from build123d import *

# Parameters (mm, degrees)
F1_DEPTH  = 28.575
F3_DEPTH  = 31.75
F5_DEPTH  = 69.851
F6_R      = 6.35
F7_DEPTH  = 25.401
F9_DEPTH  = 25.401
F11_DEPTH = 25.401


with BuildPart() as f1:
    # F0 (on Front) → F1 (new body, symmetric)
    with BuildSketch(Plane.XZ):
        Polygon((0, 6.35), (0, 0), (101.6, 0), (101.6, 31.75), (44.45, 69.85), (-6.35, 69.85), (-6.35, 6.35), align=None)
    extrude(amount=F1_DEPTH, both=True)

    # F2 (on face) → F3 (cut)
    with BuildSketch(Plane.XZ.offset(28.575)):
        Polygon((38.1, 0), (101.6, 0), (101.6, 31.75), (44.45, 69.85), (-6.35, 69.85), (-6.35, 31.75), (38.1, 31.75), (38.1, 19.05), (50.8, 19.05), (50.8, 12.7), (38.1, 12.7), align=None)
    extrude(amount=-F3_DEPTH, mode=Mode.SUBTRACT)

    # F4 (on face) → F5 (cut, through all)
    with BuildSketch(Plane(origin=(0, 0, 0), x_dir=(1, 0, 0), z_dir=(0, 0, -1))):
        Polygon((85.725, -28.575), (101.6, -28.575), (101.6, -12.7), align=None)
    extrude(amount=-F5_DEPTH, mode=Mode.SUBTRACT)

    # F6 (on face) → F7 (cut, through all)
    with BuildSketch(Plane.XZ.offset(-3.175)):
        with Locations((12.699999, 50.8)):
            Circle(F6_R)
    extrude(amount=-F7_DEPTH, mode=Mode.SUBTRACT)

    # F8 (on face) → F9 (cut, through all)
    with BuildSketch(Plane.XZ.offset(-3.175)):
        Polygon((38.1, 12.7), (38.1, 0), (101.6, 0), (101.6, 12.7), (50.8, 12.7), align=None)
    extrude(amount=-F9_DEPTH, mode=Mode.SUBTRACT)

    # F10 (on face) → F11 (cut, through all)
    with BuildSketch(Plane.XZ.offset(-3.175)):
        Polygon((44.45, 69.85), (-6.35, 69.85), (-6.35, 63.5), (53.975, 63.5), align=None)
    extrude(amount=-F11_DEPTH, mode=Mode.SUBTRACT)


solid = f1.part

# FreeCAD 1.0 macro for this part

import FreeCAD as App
import Part
import Sketcher
from FreeCAD import Vector
Q = App.Units.Quantity

doc = App.newDocument("Part")
body = doc.addObject("PartDesign::Body", "Body")

# Sketch on XZ plane
sketch1 = doc.addObject("Sketcher::SketchObject", "Sketch")
body.addObject(sketch1)
sketch1.AttachmentSupport = (doc.XZ_Plane, [""])
sketch1.MapMode = "FlatFace"
sketch1.addGeometry([
    Part.LineSegment(Vector(0, 6.35, 0), Vector(0, 0, 0)),  # 0
    Part.LineSegment(Vector(0, 0, 0), Vector(101.6, 0, 0)),  # 1
    Part.LineSegment(Vector(101.6, 0, 0), Vector(101.6, 31.75, 0)),  # 2
    Part.LineSegment(Vector(101.6, 31.75, 0), Vector(44.45, 69.85, 0)),  # 3
    Part.LineSegment(Vector(44.45, 69.85, 0), Vector(-6.35, 69.85, 0)),  # 4
    Part.LineSegment(Vector(-6.35, 69.85, 0), Vector(-6.35, 6.35, 0)),  # 5
    Part.LineSegment(Vector(-6.35, 6.35, 0), Vector(0, 6.35, 0)),  # 6
], False)
sketch1.addConstraint([
    Sketcher.Constraint("Coincident", 0, 2, 1, 1),
    Sketcher.Constraint("Coincident", 1, 2, 2, 1),
    Sketcher.Constraint("Coincident", 2, 2, 3, 1),
    Sketcher.Constraint("Coincident", 3, 2, 4, 1),
    Sketcher.Constraint("Coincident", 4, 2, 5, 1),
    Sketcher.Constraint("Coincident", 5, 2, 6, 1),
    Sketcher.Constraint("Coincident", 6, 2, 0, 1),
    Sketcher.Constraint("Vertical", 0),
    Sketcher.Constraint("Horizontal", 1),
    Sketcher.Constraint("Vertical", 2),
    Sketcher.Constraint("Horizontal", 4),
    Sketcher.Constraint("Vertical", 5),
    Sketcher.Constraint("Horizontal", 6),
    Sketcher.Constraint("Coincident", 0, 2, -1, 1),
    Sketcher.Constraint("Equal", 6, 0),
    Sketcher.Constraint("DistanceX", 1, 1, 1, 2, Q("4 in")),
    Sketcher.Constraint("DistanceX", 4, 2, 4, 1, Q("2 in")),
    Sketcher.Constraint("DistanceY", 5, 2, 5, 1, Q("2.5 in")),
    Sketcher.Constraint("DistanceY", 5, 2, 2, 2, Q("1 in")),
    Sketcher.Constraint("DistanceX", 6, 1, 6, 2, Q("0.25 in")),
])
pad1 = doc.addObject("PartDesign::Pad", "Pad")
body.addObject(pad1)
pad1.Profile = sketch1
pad1.Length = Q("2.25 in")
pad1.Midplane = True

# Sketch on XZ plane
sketch2 = doc.addObject("Sketcher::SketchObject", "Sketch001")
body.addObject(sketch2)
sketch2.AttachmentSupport = (doc.XZ_Plane, [""])
sketch2.MapMode = "FlatFace"
sketch2.AttachmentOffset = App.Placement(Vector(0, 0, 1.125 * 25.4), App.Rotation())
sketch2.addGeometry([
    Part.LineSegment(Vector(38.1, 0, 0), Vector(101.6, 0, 0)),  # 0
    Part.LineSegment(Vector(101.6, 0, 0), Vector(101.6, 31.75, 0)),  # 1
    Part.LineSegment(Vector(101.6, 31.75, 0), Vector(44.45, 69.85, 0)),  # 2
    Part.LineSegment(Vector(44.45, 69.85, 0), Vector(-6.35, 69.85, 0)),  # 3
    Part.LineSegment(Vector(-6.35, 69.85, 0), Vector(-6.35, 31.75, 0)),  # 4
    Part.LineSegment(Vector(-6.35, 31.75, 0), Vector(38.1, 31.75, 0)),  # 5
    Part.LineSegment(Vector(38.1, 31.75, 0), Vector(38.1, 19.05, 0)),  # 6
    Part.LineSegment(Vector(38.1, 19.05, 0), Vector(50.8, 19.05, 0)),  # 7
    Part.LineSegment(Vector(50.8, 19.05, 0), Vector(50.8, 12.7, 0)),  # 8
    Part.LineSegment(Vector(50.8, 12.7, 0), Vector(38.1, 12.7, 0)),  # 9
    Part.LineSegment(Vector(38.1, 12.7, 0), Vector(38.1, 0, 0)),  # 10
], False)
sketch2.addConstraint([
    Sketcher.Constraint("Coincident", 0, 2, 1, 1),
    Sketcher.Constraint("Coincident", 1, 2, 2, 1),
    Sketcher.Constraint("Coincident", 2, 2, 3, 1),
    Sketcher.Constraint("Coincident", 3, 2, 4, 1),
    Sketcher.Constraint("Coincident", 4, 2, 5, 1),
    Sketcher.Constraint("Coincident", 5, 2, 6, 1),
    Sketcher.Constraint("Coincident", 6, 2, 7, 1),
    Sketcher.Constraint("Coincident", 7, 2, 8, 1),
    Sketcher.Constraint("Coincident", 8, 2, 9, 1),
    Sketcher.Constraint("Coincident", 9, 2, 10, 1),
    Sketcher.Constraint("Coincident", 10, 2, 0, 1),
    Sketcher.Constraint("Horizontal", 0),
    Sketcher.Constraint("Vertical", 1),
    Sketcher.Constraint("Horizontal", 3),
    Sketcher.Constraint("Vertical", 4),
    Sketcher.Constraint("Horizontal", 5),
    Sketcher.Constraint("Vertical", 6),
    Sketcher.Constraint("Horizontal", 7),
    Sketcher.Constraint("Vertical", 8),
    Sketcher.Constraint("Horizontal", 9),
    Sketcher.Constraint("Vertical", 10),
    Sketcher.Constraint("PointOnObject", 0, 2, -1),
    Sketcher.Constraint("Horizontal", 1, 2, 4, 2),
    Sketcher.Constraint("Vertical", 6, 2, 9, 2),
    Sketcher.Constraint("Equal", 9, 6),
    Sketcher.Constraint("Equal", 6, 10),
    Sketcher.Constraint("DistanceX", 3, 2, 3, 1, Q("2 in")),
    Sketcher.Constraint("DistanceX", 0, 1, 0, 2, Q("2.5 in")),
    Sketcher.Constraint("DistanceX", 7, 1, 7, 2, Q("0.5 in")),
    Sketcher.Constraint("DistanceY", 4, 2, 4, 1, Q("1.5 in")),
    Sketcher.Constraint("DistanceX", -1, 1, 0, 2, Q("4 in")),
    Sketcher.Constraint("DistanceX", 5, 1, 5, 2, Q("1.75 in")),
    Sketcher.Constraint("DistanceY", 1, 1, 1, 2, Q("1.25 in")),
])
pocket1 = doc.addObject("PartDesign::Pocket", "Pocket")
body.addObject(pocket1)
pocket1.Profile = sketch2
pocket1.Length = Q("1.25 in")

# Sketch on XY plane
sketch3 = doc.addObject("Sketcher::SketchObject", "Sketch002")
body.addObject(sketch3)
sketch3.AttachmentSupport = (doc.XY_Plane, [""])
sketch3.MapMode = "FlatFace"
sketch3.addGeometry([
    Part.LineSegment(Vector(85.725, 28.575, 0), Vector(101.6, 28.575, 0)),
    Part.LineSegment(Vector(101.6, 28.575, 0), Vector(101.6, 12.7, 0)),
    Part.LineSegment(Vector(101.6, 12.7, 0), Vector(85.725, 28.575, 0)),
], False)
sketch3.addConstraint([
    Sketcher.Constraint("Coincident", 0, 2, 1, 1),
    Sketcher.Constraint("Coincident", 1, 2, 2, 1),
    Sketcher.Constraint("Coincident", 2, 2, 0, 1),
    Sketcher.Constraint("Horizontal", 0),
    Sketcher.Constraint("Vertical", 1),
    Sketcher.Constraint("Equal", 0, 1),
    Sketcher.Constraint("DistanceX", -1, 1, 0, 2, Q("4 in")),
    Sketcher.Constraint("DistanceY", -1, 1, 1, 2, Q("0.5 in")),
    Sketcher.Constraint("DistanceX", 0, 1, 0, 2, Q("0.625 in")),
])
pocket2 = doc.addObject("PartDesign::Pocket", "Pocket001")
body.addObject(pocket2)
pocket2.Profile = sketch3
pocket2.Type = "ThroughAll"
pocket2.Reversed = True

# Sketch on XZ plane
sketch4 = doc.addObject("Sketcher::SketchObject", "Sketch003")
body.addObject(sketch4)
sketch4.AttachmentSupport = (doc.XZ_Plane, [""])
sketch4.MapMode = "FlatFace"
sketch4.AttachmentOffset = App.Placement(Vector(0, 0, -0.125 * 25.4), App.Rotation())
sketch4.addGeometry(Part.Circle(Vector(12.699999, 50.8, 0), Vector(0, 0, 1), 6.35), False)
sketch4.addConstraint([
    Sketcher.Constraint("Diameter", 0, Q("0.5 in")),
    Sketcher.Constraint("DistanceY", -1, 1, 0, 3, Q("2 in")),
    Sketcher.Constraint("DistanceX", -1, 1, 0, 3, Q("0.5 in")),
])
pocket3 = doc.addObject("PartDesign::Pocket", "Pocket002")
body.addObject(pocket3)
pocket3.Profile = sketch4
pocket3.Type = "ThroughAll"

# Sketch on XZ plane
sketch5 = doc.addObject("Sketcher::SketchObject", "Sketch004")
body.addObject(sketch5)
sketch5.AttachmentSupport = (doc.XZ_Plane, [""])
sketch5.MapMode = "FlatFace"
sketch5.AttachmentOffset = App.Placement(Vector(0, 0, -0.125 * 25.4), App.Rotation())
sketch5.addGeometry([
    Part.LineSegment(Vector(38.1, 12.7, 0), Vector(38.1, 0, 0)),
    Part.LineSegment(Vector(38.1, 0, 0), Vector(101.6, 0, 0)),
    Part.LineSegment(Vector(101.6, 0, 0), Vector(101.6, 12.7, 0)),
    Part.LineSegment(Vector(101.6, 12.7, 0), Vector(38.1, 12.7, 0)),
], False)
sketch5.addConstraint([
    Sketcher.Constraint("Coincident", 0, 2, 1, 1),
    Sketcher.Constraint("Coincident", 1, 2, 2, 1),
    Sketcher.Constraint("Coincident", 2, 2, 3, 1),
    Sketcher.Constraint("Coincident", 3, 2, 0, 1),
    Sketcher.Constraint("Vertical", 0),
    Sketcher.Constraint("Horizontal", 1),
    Sketcher.Constraint("Vertical", 2),
    Sketcher.Constraint("Horizontal", 3),
    Sketcher.Constraint("PointOnObject", 0, 2, -1),
    Sketcher.Constraint("DistanceX", 1, 1, 1, 2, Q("2.5 in")),
    Sketcher.Constraint("DistanceY", 0, 2, 0, 1, Q("0.5 in")),
    Sketcher.Constraint("DistanceX", -1, 1, 1, 2, Q("4 in")),
])
pocket4 = doc.addObject("PartDesign::Pocket", "Pocket003")
body.addObject(pocket4)
pocket4.Profile = sketch5
pocket4.Type = "ThroughAll"

# Sketch on XZ plane
sketch6 = doc.addObject("Sketcher::SketchObject", "Sketch005")
body.addObject(sketch6)
sketch6.AttachmentSupport = (doc.XZ_Plane, [""])
sketch6.MapMode = "FlatFace"
sketch6.AttachmentOffset = App.Placement(Vector(0, 0, -0.125 * 25.4), App.Rotation())
sketch6.addGeometry([
    Part.LineSegment(Vector(44.45, 69.85, 0), Vector(-6.35, 69.85, 0)),
    Part.LineSegment(Vector(-6.35, 69.85, 0), Vector(-6.35, 63.5, 0)),
    Part.LineSegment(Vector(-6.35, 63.5, 0), Vector(53.975, 63.5, 0)),
    Part.LineSegment(Vector(53.975, 63.5, 0), Vector(44.45, 69.85, 0)),
], False)
sketch6.addConstraint([
    Sketcher.Constraint("Coincident", 0, 2, 1, 1),
    Sketcher.Constraint("Coincident", 1, 2, 2, 1),
    Sketcher.Constraint("Coincident", 2, 2, 3, 1),
    Sketcher.Constraint("Coincident", 3, 2, 0, 1),
    Sketcher.Constraint("Horizontal", 0),
    Sketcher.Constraint("Vertical", 1),
    Sketcher.Constraint("Horizontal", 2),
    Sketcher.Constraint("DistanceX", 0, 2, 0, 1, Q("2 in")),
    Sketcher.Constraint("DistanceY", 1, 2, 1, 1, Q("0.25 in")),
    Sketcher.Constraint("DistanceY", -1, 1, 1, 2, Q("2.5 in")),
    Sketcher.Constraint("DistanceX", 2, 1, 2, 2, Q("2.375 in")),
    Sketcher.Constraint("DistanceX", 0, 2, -1, 1, Q("0.25 in")),
])
pocket5 = doc.addObject("PartDesign::Pocket", "Pocket004")
body.addObject(pocket5)
pocket5.Profile = sketch6
pocket5.Type = "ThroughAll"

doc.recompute()
